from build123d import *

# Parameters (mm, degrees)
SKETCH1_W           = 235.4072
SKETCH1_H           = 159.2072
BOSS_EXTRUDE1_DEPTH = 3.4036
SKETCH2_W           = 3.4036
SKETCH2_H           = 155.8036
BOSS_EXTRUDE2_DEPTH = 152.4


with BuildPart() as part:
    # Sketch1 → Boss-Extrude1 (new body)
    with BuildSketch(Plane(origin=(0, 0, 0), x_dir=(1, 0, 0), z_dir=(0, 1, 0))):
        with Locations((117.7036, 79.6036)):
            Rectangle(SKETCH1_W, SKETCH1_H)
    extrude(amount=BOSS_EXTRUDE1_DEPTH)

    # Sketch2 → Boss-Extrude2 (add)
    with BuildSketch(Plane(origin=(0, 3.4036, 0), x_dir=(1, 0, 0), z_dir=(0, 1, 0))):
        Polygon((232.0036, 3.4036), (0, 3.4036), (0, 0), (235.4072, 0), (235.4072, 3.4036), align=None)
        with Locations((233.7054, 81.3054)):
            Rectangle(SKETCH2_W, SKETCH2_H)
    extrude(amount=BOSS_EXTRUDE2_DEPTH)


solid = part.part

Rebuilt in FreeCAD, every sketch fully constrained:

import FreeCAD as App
import Part
import Sketcher
from FreeCAD import Vector
Q = App.Units.Quantity


def add_polygon(sketch, points):
    """Adds a closed chain of lines whose ends are joined by coincident constraints."""
    first, n = sketch.GeometryCount, len(points)
    for a, b in zip(points, points[1:] + points[:1]):
        sketch.addGeometry(Part.LineSegment(App.Vector(*a, 0), App.Vector(*b, 0)), False)
    for i in range(n):
        sketch.addConstraint(Sketcher.Constraint("Coincident", first + i, 2, first + (i + 1) % n, 1))

doc = App.newDocument("Part")
body = doc.addObject("PartDesign::Body", "Body")

# Sketch on XZ plane
sketch1 = body.newObject("Sketcher::SketchObject", "Sketch")
sketch1.AttachmentSupport = (doc.getObject("XZ_Plane"), [""])
sketch1.MapMode = "FlatFace"
add_polygon(sketch1, [(0, -159), (0, 0), (235, 0), (235, -159)])  # lines 0-3
sketch1.addConstraint(Sketcher.Constraint("Vertical", 0))
sketch1.addConstraint(Sketcher.Constraint("Horizontal", 1))
sketch1.addConstraint(Sketcher.Constraint("Vertical", 2))
sketch1.addConstraint(Sketcher.Constraint("Horizontal", 3))
sketch1.addConstraint(Sketcher.Constraint("Coincident", 0, 2, -1, 1))
sketch1.addConstraint(Sketcher.Constraint("DistanceX", 1, 1, 1, 2, Q("9.268 in")))
sketch1.addConstraint(Sketcher.Constraint("DistanceY", 0, 1, 0, 2, Q("6.268 in")))
pad1 = body.newObject("PartDesign::Pad", "Pad")
pad1.Profile = sketch1
pad1.Length = Q("0.134 in")
pad1.Reversed = True

# Sketch on XZ plane
sketch2 = body.newObject("Sketcher::SketchObject", "Sketch001")
sketch2.AttachmentSupport = (doc.getObject("XZ_Plane"), [""])
sketch2.MapMode = "FlatFace"
sketch2.AttachmentOffset = App.Placement(Vector(0, 0, -0.134 * 25.4), App.Rotation())
add_polygon(sketch2, [(0, -3.4), (0, 0), (235.4, 0), (235.4, -159.2), (232, -159.2), (232, -3.4)])  # lines 0-5
sketch2.addConstraint(Sketcher.Constraint("Vertical", 0))
sketch2.addConstraint(Sketcher.Constraint("Horizontal", 1))
sketch2.addConstraint(Sketcher.Constraint("Vertical", 2))
sketch2.addConstraint(Sketcher.Constraint("Horizontal", 3))
sketch2.addConstraint(Sketcher.Constraint("Vertical", 4))
sketch2.addConstraint(Sketcher.Constraint("Horizontal", 5))
sketch2.addConstraint(Sketcher.Constraint("Coincident", 0, 2, -1, 1))
sketch2.addConstraint(Sketcher.Constraint("Equal", 3, 0))
sketch2.addConstraint(Sketcher.Constraint("DistanceX", 1, 1, 1, 2, Q("9.268 in")))
sketch2.addConstraint(Sketcher.Constraint("DistanceX", 3, 2, 3, 1, Q("0.134 in")))
sketch2.addConstraint(Sketcher.Constraint("DistanceY", 2, 2, 2, 1, Q("6.268 in")))
pad2 = body.newObject("PartDesign::Pad", "Pad001")
pad2.Profile = sketch2
pad2.Length = Q("6 in")
pad2.Reversed = True

doc.recompute()
